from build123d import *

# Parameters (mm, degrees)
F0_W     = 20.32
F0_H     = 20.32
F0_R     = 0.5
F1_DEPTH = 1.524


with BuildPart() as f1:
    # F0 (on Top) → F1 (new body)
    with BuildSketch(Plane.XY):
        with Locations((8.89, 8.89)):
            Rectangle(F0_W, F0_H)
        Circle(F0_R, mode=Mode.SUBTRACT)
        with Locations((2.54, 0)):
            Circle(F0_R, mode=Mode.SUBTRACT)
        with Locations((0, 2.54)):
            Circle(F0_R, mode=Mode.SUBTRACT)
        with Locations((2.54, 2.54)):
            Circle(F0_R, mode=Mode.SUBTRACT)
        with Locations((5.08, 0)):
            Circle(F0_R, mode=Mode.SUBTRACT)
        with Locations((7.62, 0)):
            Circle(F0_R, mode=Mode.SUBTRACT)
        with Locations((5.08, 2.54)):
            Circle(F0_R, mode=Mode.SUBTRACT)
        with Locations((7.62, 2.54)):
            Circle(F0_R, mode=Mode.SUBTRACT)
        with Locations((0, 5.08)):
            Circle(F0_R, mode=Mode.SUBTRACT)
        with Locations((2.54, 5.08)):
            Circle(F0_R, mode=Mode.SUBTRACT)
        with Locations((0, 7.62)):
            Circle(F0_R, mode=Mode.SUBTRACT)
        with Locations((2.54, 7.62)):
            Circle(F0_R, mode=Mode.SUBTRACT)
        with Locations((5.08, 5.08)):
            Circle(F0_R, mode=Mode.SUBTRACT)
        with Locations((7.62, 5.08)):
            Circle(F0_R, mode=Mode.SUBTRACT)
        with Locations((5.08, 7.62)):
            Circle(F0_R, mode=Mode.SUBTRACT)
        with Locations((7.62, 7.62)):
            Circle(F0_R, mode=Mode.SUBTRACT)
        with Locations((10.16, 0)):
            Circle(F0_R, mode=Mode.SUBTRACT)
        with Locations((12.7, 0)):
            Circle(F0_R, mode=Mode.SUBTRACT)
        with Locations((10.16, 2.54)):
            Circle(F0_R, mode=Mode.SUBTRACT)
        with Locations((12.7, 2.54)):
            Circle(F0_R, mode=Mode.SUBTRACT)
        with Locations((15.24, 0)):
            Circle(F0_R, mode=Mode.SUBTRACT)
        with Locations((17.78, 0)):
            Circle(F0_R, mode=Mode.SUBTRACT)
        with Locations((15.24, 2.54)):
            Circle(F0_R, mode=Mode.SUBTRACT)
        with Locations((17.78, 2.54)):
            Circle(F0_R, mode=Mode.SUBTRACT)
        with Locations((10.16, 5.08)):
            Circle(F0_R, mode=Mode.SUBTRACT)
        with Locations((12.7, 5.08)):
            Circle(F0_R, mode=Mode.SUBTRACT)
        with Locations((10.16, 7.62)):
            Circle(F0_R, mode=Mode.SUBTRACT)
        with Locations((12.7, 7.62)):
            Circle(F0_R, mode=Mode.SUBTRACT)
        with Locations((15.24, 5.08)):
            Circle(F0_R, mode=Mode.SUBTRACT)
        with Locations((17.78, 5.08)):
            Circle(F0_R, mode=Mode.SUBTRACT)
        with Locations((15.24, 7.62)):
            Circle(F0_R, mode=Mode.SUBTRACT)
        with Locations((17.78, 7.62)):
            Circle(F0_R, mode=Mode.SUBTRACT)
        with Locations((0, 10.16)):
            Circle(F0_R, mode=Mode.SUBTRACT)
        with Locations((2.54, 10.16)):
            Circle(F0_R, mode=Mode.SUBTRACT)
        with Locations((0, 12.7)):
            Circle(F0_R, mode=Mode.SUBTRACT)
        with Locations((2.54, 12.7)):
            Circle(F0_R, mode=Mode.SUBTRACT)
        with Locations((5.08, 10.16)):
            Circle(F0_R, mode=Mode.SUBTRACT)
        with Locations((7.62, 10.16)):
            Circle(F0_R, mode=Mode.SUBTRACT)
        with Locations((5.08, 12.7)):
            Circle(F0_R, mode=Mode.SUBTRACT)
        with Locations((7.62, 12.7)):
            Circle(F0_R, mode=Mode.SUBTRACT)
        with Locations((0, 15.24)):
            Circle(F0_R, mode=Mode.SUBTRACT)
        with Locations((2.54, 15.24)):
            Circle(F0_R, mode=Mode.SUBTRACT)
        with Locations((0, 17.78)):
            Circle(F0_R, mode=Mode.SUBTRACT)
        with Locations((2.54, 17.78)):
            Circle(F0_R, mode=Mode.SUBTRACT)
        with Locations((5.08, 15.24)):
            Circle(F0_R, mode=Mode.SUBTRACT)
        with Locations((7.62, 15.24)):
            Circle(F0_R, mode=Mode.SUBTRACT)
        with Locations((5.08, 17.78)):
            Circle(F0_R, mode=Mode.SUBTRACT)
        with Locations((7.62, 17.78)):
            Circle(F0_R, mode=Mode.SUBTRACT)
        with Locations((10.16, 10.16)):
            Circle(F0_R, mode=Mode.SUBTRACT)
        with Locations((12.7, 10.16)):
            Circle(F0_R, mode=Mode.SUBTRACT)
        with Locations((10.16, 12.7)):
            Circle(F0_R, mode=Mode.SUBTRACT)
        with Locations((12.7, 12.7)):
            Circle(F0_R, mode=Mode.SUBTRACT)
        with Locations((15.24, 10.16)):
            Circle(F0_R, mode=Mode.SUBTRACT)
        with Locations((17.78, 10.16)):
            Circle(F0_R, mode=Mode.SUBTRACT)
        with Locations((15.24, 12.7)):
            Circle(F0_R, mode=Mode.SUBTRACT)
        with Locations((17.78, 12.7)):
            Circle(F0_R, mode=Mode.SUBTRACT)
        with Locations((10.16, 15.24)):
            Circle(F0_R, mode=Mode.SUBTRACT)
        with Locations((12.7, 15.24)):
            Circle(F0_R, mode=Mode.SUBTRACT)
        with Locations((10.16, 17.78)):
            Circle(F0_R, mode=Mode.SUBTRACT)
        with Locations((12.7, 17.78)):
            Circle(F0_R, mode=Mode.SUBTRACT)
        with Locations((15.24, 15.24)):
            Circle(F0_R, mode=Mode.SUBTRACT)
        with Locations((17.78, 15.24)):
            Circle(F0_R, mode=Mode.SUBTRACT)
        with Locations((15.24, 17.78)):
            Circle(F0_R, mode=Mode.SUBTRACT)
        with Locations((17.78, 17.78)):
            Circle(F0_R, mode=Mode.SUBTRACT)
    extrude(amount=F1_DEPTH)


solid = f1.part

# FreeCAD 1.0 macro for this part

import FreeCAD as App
import Part
import Sketcher

V = App.Vector
Q = App.Units.Quantity


def add_polygon(sketch, points):
    """Adds a closed chain of lines whose ends are joined by coincident constraints."""
    first, n = sketch.GeometryCount, len(points)
    for a, b in zip(points, points[1:] + points[:1]):
        sketch.addGeometry(Part.LineSegment(App.Vector(*a, 0), App.Vector(*b, 0)), False)
    for i in range(n):
        sketch.addConstraint(Sketcher.Constraint("Coincident", first + i, 2, first + (i + 1) % n, 1))

doc = App.newDocument("Part")
params = doc.addObject("Spreadsheet::Sheet", "Params")
for row, (alias, value) in enumerate([
    ("sketch1_width", "0.8 in"),
    ("pad1_length", "0.06 in"),
], start=1):
    params.set(f"A{row}", alias)
    params.set(f"B{row}", "=" + value)
    params.setAlias(f"B{row}", alias)

body = doc.addObject("PartDesign::Body", "Body")

sketch1 = doc.addObject("Sketcher::SketchObject", "Sketch")
body.addObject(sketch1)
sketch1.AttachmentSupport = (doc.XY_Plane, [""])
sketch1.MapMode = "FlatFace"
add_polygon(sketch1, [(-1.3, 19.1), (-1.3, -1.3), (19.1, -1.3), (19.1, 19.1)])
sketch1.addGeometry(Part.Circle(V(0, 0, 0), V(0, 0, 1), 0.5), False)
sketch1.addGeometry(Part.Circle(V(2.5, 0, 0), V(0, 0, 1), 0.5), False)
sketch1.addGeometry(Part.Circle(V(0, 2.5, 0), V(0, 0, 1), 0.5), False)
sketch1.addGeometry(Part.Circle(V(2.5, 2.5, 0), V(0, 0, 1), 0.5), False)
sketch1.addGeometry(Part.Circle(V(5.1, 0, 0), V(0, 0, 1), 0.5), False)
sketch1.addGeometry(Part.Circle(V(7.6, 0, 0), V(0, 0, 1), 0.5), False)
sketch1.addGeometry(Part.Circle(V(5.1, 2.5, 0), V(0, 0, 1), 0.5), False)
sketch1.addGeometry(Part.Circle(V(7.6, 2.5, 0), V(0, 0, 1), 0.5), False)
sketch1.addGeometry(Part.Circle(V(0, 5.1, 0), V(0, 0, 1), 0.5), False)
sketch1.addGeometry(Part.Circle(V(2.5, 5.1, 0), V(0, 0, 1), 0.5), False)
sketch1.addGeometry(Part.Circle(V(0, 7.6, 0), V(0, 0, 1), 0.5), False)
sketch1.addGeometry(Part.Circle(V(2.5, 7.6, 0), V(0, 0, 1), 0.5), False)
sketch1.addGeometry(Part.Circle(V(5.1, 5.1, 0), V(0, 0, 1), 0.5), False)
sketch1.addGeometry(Part.Circle(V(7.6, 5.1, 0), V(0, 0, 1), 0.5), False)
sketch1.addGeometry(Part.Circle(V(5.1, 7.6, 0), V(0, 0, 1), 0.5), False)
sketch1.addGeometry(Part.Circle(V(7.6, 7.6, 0), V(0, 0, 1), 0.5), False)
sketch1.addGeometry(Part.Circle(V(10.2, 0, 0), V(0, 0, 1), 0.5), False)
sketch1.addGeometry(Part.Circle(V(12.7, 0, 0), V(0, 0, 1), 0.5), False)
sketch1.addGeometry(Part.Circle(V(10.2, 2.5, 0), V(0, 0, 1), 0.5), False)
sketch1.addGeometry(Part.Circle(V(12.7, 2.5, 0), V(0, 0, 1), 0.5), False)
sketch1.addGeometry(Part.Circle(V(15.2, 0, 0), V(0, 0, 1), 0.5), False)
sketch1.addGeometry(Part.Circle(V(17.8, 0, 0), V(0, 0, 1), 0.5), False)
sketch1.addGeometry(Part.Circle(V(15.2, 2.5, 0), V(0, 0, 1), 0.5), False)
sketch1.addGeometry(Part.Circle(V(17.8, 2.5, 0), V(0, 0, 1), 0.5), False)
sketch1.addGeometry(Part.Circle(V(10.2, 5.1, 0), V(0, 0, 1), 0.5), False)
sketch1.addGeometry(Part.Circle(V(12.7, 5.1, 0), V(0, 0, 1), 0.5), False)
sketch1.addGeometry(Part.Circle(V(10.2, 7.6, 0), V(0, 0, 1), 0.5), False)
sketch1.addGeometry(Part.Circle(V(12.7, 7.6, 0), V(0, 0, 1), 0.5), False)
sketch1.addGeometry(Part.Circle(V(15.2, 5.1, 0), V(0, 0, 1), 0.5), False)
sketch1.addGeometry(Part.Circle(V(17.8, 5.1, 0), V(0, 0, 1), 0.5), False)
sketch1.addGeometry(Part.Circle(V(15.2, 7.6, 0), V(0, 0, 1), 0.5), False)
sketch1.addGeometry(Part.Circle(V(17.8, 7.6, 0), V(0, 0, 1), 0.5), False)
sketch1.addGeometry(Part.Circle(V(0, 10.2, 0), V(0, 0, 1), 0.5), False)
sketch1.addGeometry(Part.Circle(V(2.5, 10.2, 0), V(0, 0, 1), 0.5), False)
sketch1.addGeometry(Part.Circle(V(0, 12.7, 0), V(0, 0, 1), 0.5), False)
sketch1.addGeometry(Part.Circle(V(2.5, 12.7, 0), V(0, 0, 1), 0.5), False)
sketch1.addGeometry(Part.Circle(V(5.1, 10.2, 0), V(0, 0, 1), 0.5), False)
sketch1.addGeometry(Part.Circle(V(7.6, 10.2, 0), V(0, 0, 1), 0.5), False)
sketch1.addGeometry(Part.Circle(V(5.1, 12.7, 0), V(0, 0, 1), 0.5), False)
sketch1.addGeometry(Part.Circle(V(7.6, 12.7, 0), V(0, 0, 1), 0.5), False)
sketch1.addGeometry(Part.Circle(V(0, 15.2, 0), V(0, 0, 1), 0.5), False)
sketch1.addGeometry(Part.Circle(V(2.5, 15.2, 0), V(0, 0, 1), 0.5), False)
sketch1.addGeometry(Part.Circle(V(0, 17.8, 0), V(0, 0, 1), 0.5), False)
sketch1.addGeometry(Part.Circle(V(2.5, 17.8, 0), V(0, 0, 1), 0.5), False)
sketch1.addGeometry(Part.Circle(V(5.1, 15.2, 0), V(0, 0, 1), 0.5), False)
sketch1.addGeometry(Part.Circle(V(7.6, 15.2, 0), V(0, 0, 1), 0.5), False)
sketch1.addGeometry(Part.Circle(V(5.1, 17.8, 0), V(0, 0, 1), 0.5), False)
sketch1.addGeometry(Part.Circle(V(7.6, 17.8, 0), V(0, 0, 1), 0.5), False)
sketch1.addGeometry(Part.Circle(V(10.2, 10.2, 0), V(0, 0, 1), 0.5), False)
sketch1.addGeometry(Part.Circle(V(12.7, 10.2, 0), V(0, 0, 1), 0.5), False)
sketch1.addGeometry(Part.Circle(V(10.2, 12.7, 0), V(0, 0, 1), 0.5), False)
sketch1.addGeometry(Part.Circle(V(12.7, 12.7, 0), V(0, 0, 1), 0.5), False)
sketch1.addGeometry(Part.Circle(V(15.2, 10.2, 0), V(0, 0, 1), 0.5), False)
sketch1.addGeometry(Part.Circle(V(17.8, 10.2, 0), V(0, 0, 1), 0.5), False)
sketch1.addGeometry(Part.Circle(V(15.2, 12.7, 0), V(0, 0, 1), 0.5), False)
sketch1.addGeometry(Part.Circle(V(17.8, 12.7, 0), V(0, 0, 1), 0.5), False)
sketch1.addGeometry(Part.Circle(V(10.2, 15.2, 0), V(0, 0, 1), 0.5), False)
sketch1.addGeometry(Part.Circle(V(12.7, 15.2, 0), V(0, 0, 1), 0.5), False)
sketch1.addGeometry(Part.Circle(V(10.2, 17.8, 0), V(0, 0, 1), 0.5), False)
sketch1.addGeometry(Part.Circle(V(12.7, 17.8, 0), V(0, 0, 1), 0.5), False)
sketch1.addGeometry(Part.Circle(V(15.2, 15.2, 0), V(0, 0, 1), 0.5), False)
sketch1.addGeometry(Part.Circle(V(17.8, 15.2, 0), V(0, 0, 1), 0.5), False)
sketch1.addGeometry(Part.Circle(V(15.2, 17.8, 0), V(0, 0, 1), 0.5), False)
sketch1.addGeometry(Part.Circle(V(17.8, 17.8, 0), V(0, 0, 1), 0.5), False)
sketch1.addConstraint([
    Sketcher.Constraint("Vertical", 0),
    Sketcher.Constraint("Horizontal", 1),
    Sketcher.Constraint("Vertical", 2),
    Sketcher.Constraint("Horizontal", 3),
    Sketcher.Constraint("Coincident", 4, 3, -1, 1),
    Sketcher.Constraint("Equal", 4, 5),
    Sketcher.Constraint("Equal", 5, 6),
    Sketcher.Constraint("Equal", 6, 7),
    Sketcher.Constraint("Equal", 7, 8),
    Sketcher.Constraint("Equal", 8, 9),
    Sketcher.Constraint("Equal", 9, 10),
    Sketcher.Constraint("Equal", 10, 11),
    Sketcher.Constraint("Equal", 11, 12),
    Sketcher.Constraint("Equal", 12, 13),
    Sketcher.Constraint("Equal", 13, 14),
    Sketcher.Constraint("Equal", 14, 15),
    Sketcher.Constraint("Equal", 15, 16),
    Sketcher.Constraint("Equal", 16, 17),
    Sketcher.Constraint("Equal", 17, 18),
    Sketcher.Constraint("Equal", 18, 19),
    Sketcher.Constraint("Equal", 19, 20),
    Sketcher.Constraint("Equal", 20, 21),
    Sketcher.Constraint("Equal", 21, 22),
    Sketcher.Constraint("Equal", 22, 23),
    Sketcher.Constraint("Equal", 23, 24),
    Sketcher.Constraint("Equal", 24, 25),
    Sketcher.Constraint("Equal", 25, 26),
    Sketcher.Constraint("Equal", 26, 27),
    Sketcher.Constraint("Equal", 27, 28),
    Sketcher.Constraint("Equal", 28, 29),
    Sketcher.Constraint("Equal", 29, 30),
    Sketcher.Constraint("Equal", 30, 31),
    Sketcher.Constraint("Equal", 31, 32),
    Sketcher.Constraint("Equal", 32, 33),
    Sketcher.Constraint("Equal", 33, 34),
    Sketcher.Constraint("Equal", 34, 35),
    Sketcher.Constraint("Equal", 35, 36),
    Sketcher.Constraint("Equal", 36, 37),
    Sketcher.Constraint("Equal", 37, 38),
    Sketcher.Constraint("Equal", 38, 39),
    Sketcher.Constraint("Equal", 39, 40),
    Sketcher.Constraint("Equal", 40, 41),
    Sketcher.Constraint("Equal", 41, 42),
    Sketcher.Constraint("Equal", 42, 43),
    Sketcher.Constraint("Equal", 43, 44),
    Sketcher.Constraint("Equal", 44, 45),
    Sketcher.Constraint("Equal", 45, 46),
    Sketcher.Constraint("Equal", 46, 47),
    Sketcher.Constraint("Equal", 47, 48),
    Sketcher.Constraint("Equal", 48, 49),
    Sketcher.Constraint("Equal", 49, 50),
    Sketcher.Constraint("Equal", 50, 51),
    Sketcher.Constraint("Equal", 51, 52),
    Sketcher.Constraint("Equal", 52, 53),
    Sketcher.Constraint("Equal", 53, 54),
    Sketcher.Constraint("Equal", 54, 55),
    Sketcher.Constraint("Equal", 55, 56),
    Sketcher.Constraint("Equal", 56, 57),
    Sketcher.Constraint("Equal", 57, 58),
    Sketcher.Constraint("Equal", 58, 59),
    Sketcher.Constraint("Equal", 59, 60),
    Sketcher.Constraint("Equal", 60, 61),
    Sketcher.Constraint("Equal", 61, 62),
    Sketcher.Constraint("Equal", 62, 63),
    Sketcher.Constraint("Equal", 63, 64),
    Sketcher.Constraint("Equal", 64, 65),
    Sketcher.Constraint("Equal", 65, 66),
    Sketcher.Constraint("Equal", 66, 67),
    Sketcher.Constraint("PointOnObject", 5, 3, -1),
    Sketcher.Constraint("PointOnObject", 6, 3, -2),
    Sketcher.Constraint("PointOnObject", 8, 3, -1),
    Sketcher.Constraint("PointOnObject", 9, 3, -1),
    Sketcher.Constraint("PointOnObject", 12, 3, -2),
    Sketcher.Constraint("PointOnObject", 14, 3, -2),
    Sketcher.Constraint("PointOnObject", 20, 3, -1),
    Sketcher.Constraint("PointOnObject", 21, 3, -1),
    Sketcher.Constraint("PointOnObject", 24, 3, -1),
    Sketcher.Constraint("PointOnObject", 25, 3, -1),
    Sketcher.Constraint("PointOnObject", 36, 3, -2),
    Sketcher.Constraint("PointOnObject", 38, 3, -2),
    Sketcher.Constraint("PointOnObject", 44, 3, -2),
    Sketcher.Constraint("PointOnObject", 46, 3, -2),
    Sketcher.Constraint("Horizontal", 6, 3, 7, 3),
    Sketcher.Constraint("Horizontal", 7, 3, 10, 3),
    Sketcher.Constraint("Horizontal", 10, 3, 11, 3),
    Sketcher.Constraint("Horizontal", 12, 3, 13, 3),
    Sketcher.Constraint("Horizontal", 14, 3, 15, 3),
    Sketcher.Constraint("Horizontal", 13, 3, 16, 3),
    Sketcher.Constraint("Horizontal", 16, 3, 17, 3),
    Sketcher.Constraint("Horizontal", 15, 3, 18, 3),
    Sketcher.Constraint("Horizontal", 18, 3, 19, 3),
    Sketcher.Constraint("Horizontal", 11, 3, 22, 3),
    Sketcher.Constraint("Horizontal", 22, 3, 23, 3),
    Sketcher.Constraint("Horizontal", 23, 3, 26, 3),
    Sketcher.Constraint("Horizontal", 26, 3, 27, 3),
    Sketcher.Constraint("Horizontal", 17, 3, 28, 3),
    Sketcher.Constraint("Horizontal", 28, 3, 29, 3),
    Sketcher.Constraint("Horizontal", 19, 3, 30, 3),
    Sketcher.Constraint("Horizontal", 30, 3, 31, 3),
    Sketcher.Constraint("Horizontal", 29, 3, 32, 3),
    Sketcher.Constraint("Horizontal", 32, 3, 33, 3),
    Sketcher.Constraint("Horizontal", 31, 3, 34, 3),
    Sketcher.Constraint("Horizontal", 34, 3, 35, 3),
    Sketcher.Constraint("Horizontal", 36, 3, 37, 3),
    Sketcher.Constraint("Horizontal", 38, 3, 39, 3),
    Sketcher.Constraint("Horizontal", 37, 3, 40, 3),
    Sketcher.Constraint("Horizontal", 40, 3, 41, 3),
    Sketcher.Constraint("Horizontal", 39, 3, 42, 3),
    Sketcher.Constraint("Horizontal", 42, 3, 43, 3),
    Sketcher.Constraint("Horizontal", 44, 3, 45, 3),
    Sketcher.Constraint("Horizontal", 46, 3, 47, 3),
    Sketcher.Constraint("Horizontal", 45, 3, 48, 3),
    Sketcher.Constraint("Horizontal", 48, 3, 49, 3),
    Sketcher.Constraint("Horizontal", 47, 3, 50, 3),
    Sketcher.Constraint("Horizontal", 50, 3, 51, 3),
    Sketcher.Constraint("Horizontal", 41, 3, 52, 3),
    Sketcher.Constraint("Horizontal", 52, 3, 53, 3),
    Sketcher.Constraint("Horizontal", 43, 3, 54, 3),
    Sketcher.Constraint("Horizontal", 54, 3, 55, 3),
    Sketcher.Constraint("Horizontal", 53, 3, 56, 3),
    Sketcher.Constraint("Horizontal", 56, 3, 57, 3),
    Sketcher.Constraint("Horizontal", 55, 3, 58, 3),
    Sketcher.Constraint("Horizontal", 58, 3, 59, 3),
    Sketcher.Constraint("Horizontal", 49, 3, 60, 3),
    Sketcher.Constraint("Horizontal", 60, 3, 61, 3),
    Sketcher.Constraint("Horizontal", 51, 3, 62, 3),
    Sketcher.Constraint("Horizontal", 62, 3, 63, 3),
    Sketcher.Constraint("Horizontal", 61, 3, 64, 3),
    Sketcher.Constraint("Horizontal", 64, 3, 65, 3),
    Sketcher.Constraint("Horizontal", 63, 3, 66, 3),
    Sketcher.Constraint("Horizontal", 66, 3, 67, 3),
    Sketcher.Constraint("Vertical", 5, 3, 7, 3),
    Sketcher.Constraint("Vertical", 8, 3, 10, 3),
    Sketcher.Constraint("Vertical", 9, 3, 11, 3),
    Sketcher.Constraint("Vertical", 7, 3, 13, 3),
    Sketcher.Constraint("Vertical", 13, 3, 15, 3),
    Sketcher.Constraint("Vertical", 10, 3, 16, 3),
    Sketcher.Constraint("Vertical", 11, 3, 17, 3),
    Sketcher.Constraint("Vertical", 16, 3, 18, 3),
    Sketcher.Constraint("Vertical", 17, 3, 19, 3),
    Sketcher.Constraint("Vertical", 20, 3, 22, 3),
    Sketcher.Constraint("Vertical", 21, 3, 23, 3),
    Sketcher.Constraint("Vertical", 24, 3, 26, 3),
    Sketcher.Constraint("Vertical", 25, 3, 27, 3),
    Sketcher.Constraint("Vertical", 22, 3, 28, 3),
    Sketcher.Constraint("Vertical", 23, 3, 29, 3),
    Sketcher.Constraint("Vertical", 28, 3, 30, 3),
    Sketcher.Constraint("Vertical", 29, 3, 31, 3),
    Sketcher.Constraint("Vertical", 26, 3, 32, 3),
    Sketcher.Constraint("Vertical", 27, 3, 33, 3),
    Sketcher.Constraint("Vertical", 32, 3, 34, 3),
    Sketcher.Constraint("Vertical", 33, 3, 35, 3),
    Sketcher.Constraint("Vertical", 15, 3, 37, 3),
    Sketcher.Constraint("Vertical", 37, 3, 39, 3),
    Sketcher.Constraint("Vertical", 18, 3, 40, 3),
    Sketcher.Constraint("Vertical", 19, 3, 41, 3),
    Sketcher.Constraint("Vertical", 40, 3, 42, 3),
    Sketcher.Constraint("Vertical", 41, 3, 43, 3),
    Sketcher.Constraint("Vertical", 39, 3, 45, 3),
    Sketcher.Constraint("Vertical", 45, 3, 47, 3),
    Sketcher.Constraint("Vertical", 42, 3, 48, 3),
    Sketcher.Constraint("Vertical", 43, 3, 49, 3),
    Sketcher.Constraint("Vertical", 48, 3, 50, 3),
    Sketcher.Constraint("Vertical", 49, 3, 51, 3),
    Sketcher.Constraint("Vertical", 30, 3, 52, 3),
    Sketcher.Constraint("Vertical", 31, 3, 53, 3),
    Sketcher.Constraint("Vertical", 52, 3, 54, 3),
    Sketcher.Constraint("Vertical", 53, 3, 55, 3),
    Sketcher.Constraint("Vertical", 34, 3, 56, 3),
    Sketcher.Constraint("Vertical", 35, 3, 57, 3),
    Sketcher.Constraint("Vertical", 56, 3, 58, 3),
    Sketcher.Constraint("Vertical", 57, 3, 59, 3),
    Sketcher.Constraint("Vertical", 54, 3, 60, 3),
    Sketcher.Constraint("Vertical", 55, 3, 61, 3),
    Sketcher.Constraint("Vertical", 60, 3, 62, 3),
    Sketcher.Constraint("Vertical", 61, 3, 63, 3),
    Sketcher.Constraint("Vertical", 58, 3, 64, 3),
    Sketcher.Constraint("Vertical", 59, 3, 65, 3),
    Sketcher.Constraint("Vertical", 64, 3, 66, 3),
    Sketcher.Constraint("Vertical", 65, 3, 67, 3),
    Sketcher.Constraint("Equal", 3, 0),
    Sketcher.Constraint("DistanceX", 1, 1, 1, 2, Q("0.8 in")),
    Sketcher.Constraint("DistanceX", -1, 1, 5, 3, Q("0.1 in")),
    Sketcher.Constraint("DistanceY", -1, 1, 6, 3, Q("0.1 in")),
    Sketcher.Constraint("DistanceX", -1, 1, 8, 3, Q("0.2 in")),
    Sketcher.Constraint("DistanceX", -1, 1, 9, 3, Q("0.3 in")),
    Sketcher.Constraint("DistanceY", -1, 1, 12, 3, Q("0.2 in")),
    Sketcher.Constraint("DistanceY", -1, 1, 14, 3, Q("0.3 in")),
    Sketcher.Constraint("DistanceX", -1, 1, 20, 3, Q("0.4 in")),
    Sketcher.Constraint("DistanceX", -1, 1, 21, 3, Q("0.5 in")),
    Sketcher.Constraint("DistanceX", -1, 1, 24, 3, Q("0.6 in")),
    Sketcher.Constraint("DistanceX", -1, 1, 25, 3, Q("0.7 in")),
    Sketcher.Constraint("DistanceY", -1, 1, 36, 3, Q("0.4 in")),
    Sketcher.Constraint("DistanceY", -1, 1, 38, 3, Q("0.5 in")),
    Sketcher.Constraint("DistanceY", -1, 1, 44, 3, Q("0.6 in")),
    Sketcher.Constraint("DistanceY", -1, 1, 46, 3, Q("0.7 in")),
    Sketcher.Constraint("Diameter", 4, 1.0),
    Sketcher.Constraint("DistanceX", 0, 2, -1, 1, Q("0.05 in")),
    Sketcher.Constraint("DistanceY", 0, 2, -1, 1, Q("0.05 in")),
])
sketch1.setExpression("Constraints[185]", "Params.sketch1_width")
pad1 = doc.addObject("PartDesign::Pad", "Pad")
body.addObject(pad1)
pad1.Profile = sketch1
pad1.setExpression("Length", "Params.pad1_length")

doc.recompute()
